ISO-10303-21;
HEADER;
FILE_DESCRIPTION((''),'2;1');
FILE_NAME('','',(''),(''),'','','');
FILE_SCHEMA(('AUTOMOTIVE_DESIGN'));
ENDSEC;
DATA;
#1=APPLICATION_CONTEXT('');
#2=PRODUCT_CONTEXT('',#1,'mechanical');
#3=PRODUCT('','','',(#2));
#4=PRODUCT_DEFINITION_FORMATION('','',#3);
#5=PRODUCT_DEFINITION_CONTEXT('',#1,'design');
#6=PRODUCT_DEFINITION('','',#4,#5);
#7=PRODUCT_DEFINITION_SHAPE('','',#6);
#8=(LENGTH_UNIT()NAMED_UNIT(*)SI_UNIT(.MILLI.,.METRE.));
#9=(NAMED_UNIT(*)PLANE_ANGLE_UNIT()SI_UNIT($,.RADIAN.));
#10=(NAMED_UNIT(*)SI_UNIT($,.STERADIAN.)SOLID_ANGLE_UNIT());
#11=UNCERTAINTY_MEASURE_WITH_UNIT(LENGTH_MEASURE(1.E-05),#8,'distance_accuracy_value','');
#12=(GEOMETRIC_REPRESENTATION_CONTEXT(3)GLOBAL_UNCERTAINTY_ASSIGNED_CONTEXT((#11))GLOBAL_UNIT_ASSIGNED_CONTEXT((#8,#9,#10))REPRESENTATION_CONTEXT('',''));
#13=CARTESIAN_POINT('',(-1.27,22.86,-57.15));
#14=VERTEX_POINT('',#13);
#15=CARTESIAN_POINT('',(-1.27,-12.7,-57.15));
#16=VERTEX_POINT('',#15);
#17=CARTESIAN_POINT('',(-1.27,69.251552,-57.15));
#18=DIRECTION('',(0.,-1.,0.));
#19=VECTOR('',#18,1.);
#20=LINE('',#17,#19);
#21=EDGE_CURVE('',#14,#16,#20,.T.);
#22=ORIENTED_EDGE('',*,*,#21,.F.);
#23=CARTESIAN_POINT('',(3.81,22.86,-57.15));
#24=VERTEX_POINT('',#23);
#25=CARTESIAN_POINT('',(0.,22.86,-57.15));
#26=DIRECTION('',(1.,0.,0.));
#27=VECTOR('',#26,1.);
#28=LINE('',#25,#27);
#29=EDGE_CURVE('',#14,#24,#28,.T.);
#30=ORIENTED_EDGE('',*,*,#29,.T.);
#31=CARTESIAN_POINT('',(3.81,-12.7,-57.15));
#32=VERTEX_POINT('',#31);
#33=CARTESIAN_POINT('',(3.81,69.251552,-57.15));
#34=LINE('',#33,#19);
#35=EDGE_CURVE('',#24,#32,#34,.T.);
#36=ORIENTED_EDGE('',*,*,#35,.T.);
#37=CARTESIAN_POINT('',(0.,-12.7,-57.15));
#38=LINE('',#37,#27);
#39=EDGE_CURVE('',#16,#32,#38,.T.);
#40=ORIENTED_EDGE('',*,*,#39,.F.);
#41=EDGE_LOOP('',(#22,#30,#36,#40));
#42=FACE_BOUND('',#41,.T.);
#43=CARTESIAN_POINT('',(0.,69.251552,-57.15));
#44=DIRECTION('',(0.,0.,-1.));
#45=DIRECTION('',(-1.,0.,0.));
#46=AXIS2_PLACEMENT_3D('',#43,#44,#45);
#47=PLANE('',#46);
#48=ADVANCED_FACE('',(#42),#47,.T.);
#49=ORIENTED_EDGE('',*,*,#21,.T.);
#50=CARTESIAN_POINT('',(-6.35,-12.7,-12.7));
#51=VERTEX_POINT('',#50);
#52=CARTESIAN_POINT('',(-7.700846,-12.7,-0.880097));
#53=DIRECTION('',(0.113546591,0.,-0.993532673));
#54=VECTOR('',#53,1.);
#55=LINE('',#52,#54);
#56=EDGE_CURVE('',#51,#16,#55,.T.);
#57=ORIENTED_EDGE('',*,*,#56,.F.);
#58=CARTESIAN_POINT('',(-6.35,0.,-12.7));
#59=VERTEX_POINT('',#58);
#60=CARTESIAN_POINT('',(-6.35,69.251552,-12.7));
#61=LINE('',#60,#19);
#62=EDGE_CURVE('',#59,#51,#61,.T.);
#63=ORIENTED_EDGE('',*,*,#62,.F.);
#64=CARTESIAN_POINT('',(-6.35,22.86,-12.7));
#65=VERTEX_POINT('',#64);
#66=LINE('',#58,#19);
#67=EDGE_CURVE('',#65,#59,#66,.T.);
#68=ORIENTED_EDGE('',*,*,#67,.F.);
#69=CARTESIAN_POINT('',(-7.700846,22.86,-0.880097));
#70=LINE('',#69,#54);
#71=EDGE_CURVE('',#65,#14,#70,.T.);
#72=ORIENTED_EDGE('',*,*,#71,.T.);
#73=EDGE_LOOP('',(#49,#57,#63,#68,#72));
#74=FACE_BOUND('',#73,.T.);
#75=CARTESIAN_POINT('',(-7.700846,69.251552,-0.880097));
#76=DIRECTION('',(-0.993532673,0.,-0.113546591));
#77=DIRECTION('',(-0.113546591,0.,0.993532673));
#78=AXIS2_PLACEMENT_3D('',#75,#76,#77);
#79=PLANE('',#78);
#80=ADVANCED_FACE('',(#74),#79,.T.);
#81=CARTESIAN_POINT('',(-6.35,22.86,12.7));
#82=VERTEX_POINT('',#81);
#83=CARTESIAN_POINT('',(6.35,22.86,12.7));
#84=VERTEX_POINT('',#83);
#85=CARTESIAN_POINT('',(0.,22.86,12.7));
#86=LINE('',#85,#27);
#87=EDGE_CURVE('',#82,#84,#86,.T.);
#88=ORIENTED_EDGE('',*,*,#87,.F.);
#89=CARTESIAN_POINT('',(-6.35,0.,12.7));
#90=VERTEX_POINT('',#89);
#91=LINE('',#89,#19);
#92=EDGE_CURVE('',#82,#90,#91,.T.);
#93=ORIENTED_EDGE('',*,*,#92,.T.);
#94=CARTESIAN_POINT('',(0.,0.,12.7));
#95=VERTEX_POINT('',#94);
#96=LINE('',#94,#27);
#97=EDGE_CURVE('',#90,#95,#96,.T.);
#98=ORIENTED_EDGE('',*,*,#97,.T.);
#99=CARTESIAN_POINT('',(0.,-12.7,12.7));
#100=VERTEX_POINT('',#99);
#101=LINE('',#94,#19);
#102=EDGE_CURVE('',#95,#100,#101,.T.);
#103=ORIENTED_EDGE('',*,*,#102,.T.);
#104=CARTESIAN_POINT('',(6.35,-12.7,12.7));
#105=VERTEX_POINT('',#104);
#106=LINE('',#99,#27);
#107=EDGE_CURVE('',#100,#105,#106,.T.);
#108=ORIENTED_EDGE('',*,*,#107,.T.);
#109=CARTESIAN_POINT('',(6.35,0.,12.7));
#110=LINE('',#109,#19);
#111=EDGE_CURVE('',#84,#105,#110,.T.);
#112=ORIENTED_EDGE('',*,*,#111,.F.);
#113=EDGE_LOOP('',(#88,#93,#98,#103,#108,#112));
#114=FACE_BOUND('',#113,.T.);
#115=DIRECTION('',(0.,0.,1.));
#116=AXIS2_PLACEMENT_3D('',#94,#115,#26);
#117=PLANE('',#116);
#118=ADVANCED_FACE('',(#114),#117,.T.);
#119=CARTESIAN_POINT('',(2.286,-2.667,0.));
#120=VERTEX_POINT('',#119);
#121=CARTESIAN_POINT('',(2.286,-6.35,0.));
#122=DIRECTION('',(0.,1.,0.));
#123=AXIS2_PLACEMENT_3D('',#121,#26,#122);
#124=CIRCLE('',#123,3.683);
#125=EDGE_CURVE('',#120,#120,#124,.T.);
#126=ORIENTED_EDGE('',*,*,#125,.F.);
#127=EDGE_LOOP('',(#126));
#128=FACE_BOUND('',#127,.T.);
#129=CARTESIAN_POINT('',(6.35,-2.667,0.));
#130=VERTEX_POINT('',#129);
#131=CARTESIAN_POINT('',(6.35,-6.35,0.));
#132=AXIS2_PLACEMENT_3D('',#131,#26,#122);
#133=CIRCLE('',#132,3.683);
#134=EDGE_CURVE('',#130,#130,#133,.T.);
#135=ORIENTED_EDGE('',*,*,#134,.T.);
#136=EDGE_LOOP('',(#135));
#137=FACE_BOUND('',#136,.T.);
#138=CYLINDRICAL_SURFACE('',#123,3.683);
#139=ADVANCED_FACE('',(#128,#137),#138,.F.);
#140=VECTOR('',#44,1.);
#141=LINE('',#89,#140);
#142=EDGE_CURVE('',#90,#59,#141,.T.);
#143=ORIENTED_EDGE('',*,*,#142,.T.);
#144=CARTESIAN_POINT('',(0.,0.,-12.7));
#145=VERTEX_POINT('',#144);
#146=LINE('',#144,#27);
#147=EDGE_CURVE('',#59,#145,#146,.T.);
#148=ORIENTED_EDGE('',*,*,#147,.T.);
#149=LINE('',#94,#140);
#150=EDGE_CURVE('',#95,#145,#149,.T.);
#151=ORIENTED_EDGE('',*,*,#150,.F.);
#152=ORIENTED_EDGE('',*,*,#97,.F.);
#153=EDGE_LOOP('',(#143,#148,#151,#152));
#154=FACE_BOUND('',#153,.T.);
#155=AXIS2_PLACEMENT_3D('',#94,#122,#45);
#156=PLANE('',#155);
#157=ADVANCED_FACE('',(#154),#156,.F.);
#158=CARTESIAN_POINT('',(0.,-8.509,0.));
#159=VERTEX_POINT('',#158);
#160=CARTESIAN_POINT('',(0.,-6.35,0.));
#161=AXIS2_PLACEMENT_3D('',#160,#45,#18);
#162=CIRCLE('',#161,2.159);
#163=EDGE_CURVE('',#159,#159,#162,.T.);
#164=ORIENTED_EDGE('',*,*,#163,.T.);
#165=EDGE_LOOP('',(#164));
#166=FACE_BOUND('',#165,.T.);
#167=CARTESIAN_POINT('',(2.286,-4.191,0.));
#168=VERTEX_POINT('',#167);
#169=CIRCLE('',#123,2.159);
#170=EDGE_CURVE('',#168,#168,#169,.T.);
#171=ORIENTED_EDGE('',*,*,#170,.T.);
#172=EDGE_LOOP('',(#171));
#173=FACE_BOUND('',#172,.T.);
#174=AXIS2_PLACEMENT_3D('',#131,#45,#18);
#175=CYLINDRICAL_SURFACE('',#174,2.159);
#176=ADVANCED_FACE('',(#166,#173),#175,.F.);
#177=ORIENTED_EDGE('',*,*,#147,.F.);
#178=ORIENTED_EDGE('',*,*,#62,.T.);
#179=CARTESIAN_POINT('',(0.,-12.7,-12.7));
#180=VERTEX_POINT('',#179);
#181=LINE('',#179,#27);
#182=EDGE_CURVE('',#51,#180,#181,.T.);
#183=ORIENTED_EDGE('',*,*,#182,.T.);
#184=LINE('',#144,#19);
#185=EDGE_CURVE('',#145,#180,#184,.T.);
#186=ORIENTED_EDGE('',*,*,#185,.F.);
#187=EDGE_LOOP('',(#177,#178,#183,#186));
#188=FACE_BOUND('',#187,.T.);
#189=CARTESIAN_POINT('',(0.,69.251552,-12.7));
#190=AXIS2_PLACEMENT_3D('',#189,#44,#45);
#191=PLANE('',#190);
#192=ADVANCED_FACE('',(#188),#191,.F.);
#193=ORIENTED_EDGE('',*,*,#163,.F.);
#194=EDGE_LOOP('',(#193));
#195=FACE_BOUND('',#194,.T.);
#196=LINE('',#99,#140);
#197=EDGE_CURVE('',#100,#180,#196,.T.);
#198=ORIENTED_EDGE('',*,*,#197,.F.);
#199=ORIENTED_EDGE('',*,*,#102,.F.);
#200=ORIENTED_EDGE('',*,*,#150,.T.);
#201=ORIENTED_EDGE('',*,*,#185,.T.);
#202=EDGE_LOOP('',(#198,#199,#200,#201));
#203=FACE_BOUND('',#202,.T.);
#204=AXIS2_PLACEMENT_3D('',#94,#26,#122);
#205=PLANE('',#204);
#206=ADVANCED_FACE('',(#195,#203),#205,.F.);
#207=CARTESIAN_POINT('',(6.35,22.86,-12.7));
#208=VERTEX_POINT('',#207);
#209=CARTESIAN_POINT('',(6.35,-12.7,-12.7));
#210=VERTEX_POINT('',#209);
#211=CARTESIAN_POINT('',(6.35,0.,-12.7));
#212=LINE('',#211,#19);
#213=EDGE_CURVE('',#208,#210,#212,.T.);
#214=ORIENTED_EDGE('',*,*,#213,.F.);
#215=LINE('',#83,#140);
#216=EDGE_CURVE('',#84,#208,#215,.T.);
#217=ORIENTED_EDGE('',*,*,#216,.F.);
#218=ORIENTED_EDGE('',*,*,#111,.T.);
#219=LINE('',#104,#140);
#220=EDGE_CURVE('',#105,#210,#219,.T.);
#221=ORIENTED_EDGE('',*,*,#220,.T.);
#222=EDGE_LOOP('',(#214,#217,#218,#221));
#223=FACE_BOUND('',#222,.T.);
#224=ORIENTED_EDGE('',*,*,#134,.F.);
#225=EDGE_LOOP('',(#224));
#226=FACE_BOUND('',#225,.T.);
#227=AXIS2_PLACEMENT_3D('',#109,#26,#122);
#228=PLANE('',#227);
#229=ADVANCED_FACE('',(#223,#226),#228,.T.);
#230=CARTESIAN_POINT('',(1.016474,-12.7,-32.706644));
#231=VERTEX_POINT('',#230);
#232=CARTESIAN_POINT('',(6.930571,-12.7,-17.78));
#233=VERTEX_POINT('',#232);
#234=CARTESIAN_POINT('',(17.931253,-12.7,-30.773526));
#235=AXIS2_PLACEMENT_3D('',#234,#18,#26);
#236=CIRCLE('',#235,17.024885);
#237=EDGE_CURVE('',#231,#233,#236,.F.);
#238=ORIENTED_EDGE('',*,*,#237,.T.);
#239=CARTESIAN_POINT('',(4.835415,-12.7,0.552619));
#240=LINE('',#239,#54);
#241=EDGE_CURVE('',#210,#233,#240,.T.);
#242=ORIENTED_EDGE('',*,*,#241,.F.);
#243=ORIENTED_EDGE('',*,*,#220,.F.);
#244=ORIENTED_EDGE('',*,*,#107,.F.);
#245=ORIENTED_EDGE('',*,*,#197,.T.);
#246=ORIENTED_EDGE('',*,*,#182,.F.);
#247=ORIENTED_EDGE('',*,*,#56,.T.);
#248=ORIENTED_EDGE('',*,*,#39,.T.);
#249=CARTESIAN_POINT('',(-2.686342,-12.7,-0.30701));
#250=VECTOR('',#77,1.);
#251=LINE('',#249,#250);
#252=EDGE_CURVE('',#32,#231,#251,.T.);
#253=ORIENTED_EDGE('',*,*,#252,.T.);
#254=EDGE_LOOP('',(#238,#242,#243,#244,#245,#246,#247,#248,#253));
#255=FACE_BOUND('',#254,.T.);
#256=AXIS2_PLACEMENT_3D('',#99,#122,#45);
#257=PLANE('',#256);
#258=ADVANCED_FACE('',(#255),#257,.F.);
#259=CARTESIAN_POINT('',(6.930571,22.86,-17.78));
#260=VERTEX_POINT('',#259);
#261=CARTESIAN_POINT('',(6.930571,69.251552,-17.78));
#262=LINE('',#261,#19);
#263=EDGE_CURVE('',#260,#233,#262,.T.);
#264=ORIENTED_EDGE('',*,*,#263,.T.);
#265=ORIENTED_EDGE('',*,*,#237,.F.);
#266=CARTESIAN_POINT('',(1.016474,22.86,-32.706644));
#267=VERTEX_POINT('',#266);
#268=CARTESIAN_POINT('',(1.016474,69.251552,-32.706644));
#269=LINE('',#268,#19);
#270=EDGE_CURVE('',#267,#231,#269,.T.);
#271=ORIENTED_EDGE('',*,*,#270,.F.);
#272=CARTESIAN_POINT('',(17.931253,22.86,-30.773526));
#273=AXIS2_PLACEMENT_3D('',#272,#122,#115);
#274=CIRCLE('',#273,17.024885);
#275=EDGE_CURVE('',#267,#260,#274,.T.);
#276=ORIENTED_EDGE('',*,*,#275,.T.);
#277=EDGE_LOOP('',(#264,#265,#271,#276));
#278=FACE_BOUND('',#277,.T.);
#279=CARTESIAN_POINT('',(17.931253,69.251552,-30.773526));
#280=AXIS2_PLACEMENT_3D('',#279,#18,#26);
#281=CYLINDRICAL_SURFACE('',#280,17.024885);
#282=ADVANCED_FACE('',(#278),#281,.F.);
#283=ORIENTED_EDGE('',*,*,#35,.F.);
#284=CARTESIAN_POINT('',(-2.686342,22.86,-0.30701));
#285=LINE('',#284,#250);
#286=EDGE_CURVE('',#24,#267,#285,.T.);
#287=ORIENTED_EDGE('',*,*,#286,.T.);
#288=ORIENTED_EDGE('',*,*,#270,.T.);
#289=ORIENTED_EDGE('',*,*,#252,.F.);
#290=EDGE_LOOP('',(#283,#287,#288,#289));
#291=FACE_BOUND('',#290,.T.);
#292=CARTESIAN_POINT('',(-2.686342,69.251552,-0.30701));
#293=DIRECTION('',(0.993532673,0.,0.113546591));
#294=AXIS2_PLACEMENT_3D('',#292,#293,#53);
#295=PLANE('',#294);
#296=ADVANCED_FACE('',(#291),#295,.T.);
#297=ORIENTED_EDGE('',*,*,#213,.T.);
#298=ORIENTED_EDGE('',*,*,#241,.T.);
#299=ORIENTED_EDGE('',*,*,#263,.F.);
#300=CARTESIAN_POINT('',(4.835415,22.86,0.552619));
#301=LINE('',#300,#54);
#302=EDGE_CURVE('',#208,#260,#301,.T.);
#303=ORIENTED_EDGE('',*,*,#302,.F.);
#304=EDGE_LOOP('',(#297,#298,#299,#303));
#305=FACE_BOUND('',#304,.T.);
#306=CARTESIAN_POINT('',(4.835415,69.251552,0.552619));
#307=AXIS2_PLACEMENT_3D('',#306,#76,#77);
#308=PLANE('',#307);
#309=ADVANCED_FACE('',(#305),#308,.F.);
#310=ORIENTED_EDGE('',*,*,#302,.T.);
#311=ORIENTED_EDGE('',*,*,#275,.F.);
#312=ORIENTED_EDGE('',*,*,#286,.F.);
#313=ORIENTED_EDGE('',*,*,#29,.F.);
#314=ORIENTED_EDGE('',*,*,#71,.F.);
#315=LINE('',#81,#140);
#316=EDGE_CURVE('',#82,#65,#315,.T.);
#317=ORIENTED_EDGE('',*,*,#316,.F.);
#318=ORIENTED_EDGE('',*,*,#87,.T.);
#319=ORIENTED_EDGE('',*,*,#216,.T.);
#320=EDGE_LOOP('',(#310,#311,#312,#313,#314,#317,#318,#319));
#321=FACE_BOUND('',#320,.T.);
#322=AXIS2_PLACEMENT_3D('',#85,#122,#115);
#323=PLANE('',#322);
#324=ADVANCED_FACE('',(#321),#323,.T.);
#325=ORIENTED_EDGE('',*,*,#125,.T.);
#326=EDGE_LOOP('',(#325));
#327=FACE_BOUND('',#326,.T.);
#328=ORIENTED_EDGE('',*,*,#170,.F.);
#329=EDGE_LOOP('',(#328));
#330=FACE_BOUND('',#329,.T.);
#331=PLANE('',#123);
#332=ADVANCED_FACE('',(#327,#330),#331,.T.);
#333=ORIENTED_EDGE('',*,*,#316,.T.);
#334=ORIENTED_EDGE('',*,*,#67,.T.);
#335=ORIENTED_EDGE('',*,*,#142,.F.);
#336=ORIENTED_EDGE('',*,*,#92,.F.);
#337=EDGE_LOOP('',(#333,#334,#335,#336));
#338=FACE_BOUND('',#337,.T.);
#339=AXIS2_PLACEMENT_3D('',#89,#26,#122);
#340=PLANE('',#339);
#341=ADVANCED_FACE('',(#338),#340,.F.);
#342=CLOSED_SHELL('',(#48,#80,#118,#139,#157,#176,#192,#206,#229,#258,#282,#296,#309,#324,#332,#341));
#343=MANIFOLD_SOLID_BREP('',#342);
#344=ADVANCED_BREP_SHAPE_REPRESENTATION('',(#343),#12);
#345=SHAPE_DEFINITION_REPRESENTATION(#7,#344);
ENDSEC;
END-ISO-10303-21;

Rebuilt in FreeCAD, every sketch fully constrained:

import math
import FreeCAD as App
import Part
import Sketcher
from FreeCAD import Vector
Q = App.Units.Quantity

doc = App.newDocument("Part")
body = doc.addObject("PartDesign::Body", "Body")

# Sketch on XY plane
sketch1 = doc.addObject("Sketcher::SketchObject", "Sketch")
body.addObject(sketch1)
sketch1.AttachmentSupport = (doc.XY_Plane, [""])
sketch1.MapMode = "FlatFace"
sketch1.addGeometry([
    Part.LineSegment(Vector(-6.35, 22.86, 0), Vector(-6.35, 0, 0)),  # 0
    Part.LineSegment(Vector(-6.35, 0, 0), Vector(0, 0, 0)),  # 1
    Part.LineSegment(Vector(0, 0, 0), Vector(0, -12.7, 0)),  # 2
    Part.LineSegment(Vector(0, -12.7, 0), Vector(6.35, -12.7, 0)),  # 3
    Part.LineSegment(Vector(6.35, -12.7, 0), Vector(6.35, 22.86, 0)),  # 4
    Part.LineSegment(Vector(6.35, 22.86, 0), Vector(-6.35, 22.86, 0)),  # 5
], False)
sketch1.addConstraint([
    Sketcher.Constraint("Coincident", 0, 2, 1, 1),
    Sketcher.Constraint("Coincident", 1, 2, 2, 1),
    Sketcher.Constraint("Coincident", 2, 2, 3, 1),
    Sketcher.Constraint("Coincident", 3, 2, 4, 1),
    Sketcher.Constraint("Coincident", 4, 2, 5, 1),
    Sketcher.Constraint("Coincident", 5, 2, 0, 1),
    Sketcher.Constraint("Vertical", 0),
    Sketcher.Constraint("Horizontal", 1),
    Sketcher.Constraint("Vertical", 2),
    Sketcher.Constraint("Horizontal", 3),
    Sketcher.Constraint("Vertical", 4),
    Sketcher.Constraint("Horizontal", 5),
    Sketcher.Constraint("Coincident", 1, 2, -1, 1),
    Sketcher.Constraint("Equal", 1, 3),
    Sketcher.Constraint("Equal", 5, 2),
    Sketcher.Constraint("DistanceX", 5, 2, 5, 1, Q("0.5 in")),
    Sketcher.Constraint("DistanceY", 0, 2, 0, 1, Q("0.9 in")),
])
pad1 = doc.addObject("PartDesign::Pad", "Pad")
body.addObject(pad1)
pad1.Profile = sketch1
pad1.Length = Q("1 in")
pad1.Midplane = True

# Sketch on YZ plane
sketch2 = doc.addObject("Sketcher::SketchObject", "Sketch001")
body.addObject(sketch2)
sketch2.AttachmentSupport = (doc.YZ_Plane, [""])
sketch2.MapMode = "FlatFace"
sketch2.addGeometry(Part.Circle(Vector(-6.35, 0, 0), Vector(0, 0, 1), 2.159), False)
sketch2.addConstraint([
    Sketcher.Constraint("PointOnObject", 0, 3, -1),
    Sketcher.Constraint("Diameter", 0, Q("0.17 in")),
    Sketcher.Constraint("DistanceX", 0, 3, -1, 1, Q("0.25 in")),
])
pocket1 = doc.addObject("PartDesign::Pocket", "Pocket")
body.addObject(pocket1)
pocket1.Profile = sketch2
pocket1.Type = "ThroughAll"
pocket1.Midplane = True

# Sketch on YZ plane
sketch3 = doc.addObject("Sketcher::SketchObject", "Sketch002")
body.addObject(sketch3)
sketch3.AttachmentSupport = (doc.YZ_Plane, [""])
sketch3.MapMode = "FlatFace"
sketch3.AttachmentOffset = App.Placement(Vector(0, 0, 0.25 * 25.4), App.Rotation())
sketch3.addGeometry([
    Part.Circle(Vector(-6.35, 0, 0), Vector(0, 0, 1), 3.683),
    Part.Circle(Vector(-6.35, 0, 0), Vector(0, 0, 1), 2.159),
], False)
sketch3.addConstraint([
    Sketcher.Constraint("Coincident", 1, 3, 0, 3),
    Sketcher.Constraint("PointOnObject", 0, 3, -1),
    Sketcher.Constraint("Diameter", 0, Q("0.29 in")),
    Sketcher.Constraint("Diameter", 1, Q("0.17 in")),
    Sketcher.Constraint("DistanceX", 0, 3, -1, 1, Q("0.25 in")),
])
pocket2 = doc.addObject("PartDesign::Pocket", "Pocket001")
body.addObject(pocket2)
pocket2.Profile = sketch3
pocket2.Length = Q("0.16 in")

# Sketch on XZ plane
sketch4 = doc.addObject("Sketcher::SketchObject", "Sketch003")
body.addObject(sketch4)
sketch4.AttachmentSupport = (doc.XZ_Plane, [""])
sketch4.MapMode = "FlatFace"
sketch4.AttachmentOffset = App.Placement(Vector(0, 0, 0.5 * 25.4), App.Rotation())
sketch4.addGeometry([
    Part.LineSegment(Vector(-1.27, -57.15, 0), Vector(3.81, -57.15, 0)),  # 0
    Part.LineSegment(Vector(3.81, -57.15, 0), Vector(1.016474, -32.706644, 0)),  # 1
    Part.ArcOfCircle(Part.Circle(Vector(17.931253, -30.773526, 0), Vector(0, 0, 1), 17.024885), math.radians(130.252184), math.radians(186.519802)),  # 2
    Part.LineSegment(Vector(6.930571, -17.78, 0), Vector(6.35, -12.7, 0)),  # 3
    Part.LineSegment(Vector(6.35, -12.7, 0), Vector(-6.35, -12.7, 0)),  # 4
    Part.LineSegment(Vector(-6.35, -12.7, 0), Vector(-1.27, -57.15, 0)),  # 5
], False)
sketch4.addConstraint([
    Sketcher.Constraint("Coincident", 0, 2, 1, 1),
    Sketcher.Constraint("Tangent", 1, 2, 2, 2),
    Sketcher.Constraint("Coincident", 2, 1, 3, 1),
    Sketcher.Constraint("Coincident", 3, 2, 4, 1),
    Sketcher.Constraint("Coincident", 4, 2, 5, 1),
    Sketcher.Constraint("Coincident", 5, 2, 0, 1),
    Sketcher.Constraint("Horizontal", 0),
    Sketcher.Constraint("Horizontal", 4),
    Sketcher.Constraint("Parallel", 1, 3),
    Sketcher.Constraint("Parallel", 3, 5),
    Sketcher.Constraint("DistanceX", 0, 1, 0, 2, Q("0.2 in")),
    Sketcher.Constraint("DistanceX", 4, 2, 4, 1, Q("0.5 in")),
    Sketcher.Constraint("DistanceY", 2, 1, -1, 1, Q("0.7 in")),
    Sketcher.Constraint("DistanceY", 3, 2, -1, 1, Q("0.5 in")),
    Sketcher.Constraint("DistanceX", 0, 2, 3, 2, Q("0.1 in")),
    Sketcher.Constraint("DistanceX", -1, 1, 0, 2, Q("0.15 in")),
    Sketcher.Constraint("DistanceY", 0, 2, -1, 1, Q("2.25 in")),
    Sketcher.Constraint("Radius", 2, Q("17.024885 mm")),
])
pad2 = doc.addObject("PartDesign::Pad", "Pad001")
body.addObject(pad2)
pad2.Profile = sketch4
pad2.Length = Q("1.4 in")
pad2.Reversed = True

doc.recompute()
